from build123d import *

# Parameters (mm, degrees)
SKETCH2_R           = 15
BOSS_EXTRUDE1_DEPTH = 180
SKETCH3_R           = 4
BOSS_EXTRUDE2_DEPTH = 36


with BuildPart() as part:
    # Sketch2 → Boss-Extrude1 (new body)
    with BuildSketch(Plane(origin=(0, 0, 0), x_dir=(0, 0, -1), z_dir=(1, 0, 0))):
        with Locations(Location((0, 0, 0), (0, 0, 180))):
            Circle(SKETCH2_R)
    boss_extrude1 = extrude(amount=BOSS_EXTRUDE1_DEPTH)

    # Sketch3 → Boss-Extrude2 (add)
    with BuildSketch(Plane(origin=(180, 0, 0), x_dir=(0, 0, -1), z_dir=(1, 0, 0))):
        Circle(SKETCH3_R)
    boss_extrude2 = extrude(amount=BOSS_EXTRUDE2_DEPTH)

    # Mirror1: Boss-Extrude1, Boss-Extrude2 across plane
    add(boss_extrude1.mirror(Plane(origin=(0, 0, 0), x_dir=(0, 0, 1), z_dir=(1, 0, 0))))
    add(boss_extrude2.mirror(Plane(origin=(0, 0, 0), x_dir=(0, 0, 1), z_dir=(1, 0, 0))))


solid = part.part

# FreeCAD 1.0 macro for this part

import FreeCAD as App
import Part
import Sketcher

doc = App.newDocument("Part")
body = doc.addObject("PartDesign::Body", "Body")

# Sketch on YZ plane
sketch1 = doc.addObject("Sketcher::SketchObject", "Sketch")
body.addObject(sketch1)
sketch1.AttachmentSupport = (doc.YZ_Plane, [""])
sketch1.MapMode = "FlatFace"
sketch1.addGeometry(Part.Circle(App.Vector(0, 0, 0), App.Vector(0, 0, 1), 15), False)
sketch1.addConstraint(Sketcher.Constraint("Coincident", 0, 3, -1, 1))
sketch1.addConstraint(Sketcher.Constraint("Diameter", 0, 30.0))
pad1 = doc.addObject("PartDesign::Pad", "Pad")
body.addObject(pad1)
pad1.Profile = sketch1
pad1.Length = 180

# Sketch on YZ plane
sketch2 = doc.addObject("Sketcher::SketchObject", "Sketch001")
body.addObject(sketch2)
sketch2.AttachmentSupport = (doc.YZ_Plane, [""])
sketch2.MapMode = "FlatFace"
sketch2.AttachmentOffset = App.Placement(App.Vector(0, 0, 180), App.Rotation())
sketch2.addGeometry(Part.Circle(App.Vector(0, 0, 0), App.Vector(0, 0, 1), 4), False)
sketch2.addConstraint(Sketcher.Constraint("Coincident", 0, 3, -1, 1))
sketch2.addConstraint(Sketcher.Constraint("Diameter", 0, 8.0))
pad2 = doc.addObject("PartDesign::Pad", "Pad001")
body.addObject(pad2)
pad2.Profile = sketch2
pad2.Length = 36
doc.recompute()

mirrored = doc.addObject("PartDesign::Mirrored", "Mirrored")
body.addObject(mirrored)
mirrored.Originals = [pad1, pad2]
mirrored.MirrorPlane = (doc.YZ_Plane, [""])
body.Tip = mirrored

doc.recompute()
